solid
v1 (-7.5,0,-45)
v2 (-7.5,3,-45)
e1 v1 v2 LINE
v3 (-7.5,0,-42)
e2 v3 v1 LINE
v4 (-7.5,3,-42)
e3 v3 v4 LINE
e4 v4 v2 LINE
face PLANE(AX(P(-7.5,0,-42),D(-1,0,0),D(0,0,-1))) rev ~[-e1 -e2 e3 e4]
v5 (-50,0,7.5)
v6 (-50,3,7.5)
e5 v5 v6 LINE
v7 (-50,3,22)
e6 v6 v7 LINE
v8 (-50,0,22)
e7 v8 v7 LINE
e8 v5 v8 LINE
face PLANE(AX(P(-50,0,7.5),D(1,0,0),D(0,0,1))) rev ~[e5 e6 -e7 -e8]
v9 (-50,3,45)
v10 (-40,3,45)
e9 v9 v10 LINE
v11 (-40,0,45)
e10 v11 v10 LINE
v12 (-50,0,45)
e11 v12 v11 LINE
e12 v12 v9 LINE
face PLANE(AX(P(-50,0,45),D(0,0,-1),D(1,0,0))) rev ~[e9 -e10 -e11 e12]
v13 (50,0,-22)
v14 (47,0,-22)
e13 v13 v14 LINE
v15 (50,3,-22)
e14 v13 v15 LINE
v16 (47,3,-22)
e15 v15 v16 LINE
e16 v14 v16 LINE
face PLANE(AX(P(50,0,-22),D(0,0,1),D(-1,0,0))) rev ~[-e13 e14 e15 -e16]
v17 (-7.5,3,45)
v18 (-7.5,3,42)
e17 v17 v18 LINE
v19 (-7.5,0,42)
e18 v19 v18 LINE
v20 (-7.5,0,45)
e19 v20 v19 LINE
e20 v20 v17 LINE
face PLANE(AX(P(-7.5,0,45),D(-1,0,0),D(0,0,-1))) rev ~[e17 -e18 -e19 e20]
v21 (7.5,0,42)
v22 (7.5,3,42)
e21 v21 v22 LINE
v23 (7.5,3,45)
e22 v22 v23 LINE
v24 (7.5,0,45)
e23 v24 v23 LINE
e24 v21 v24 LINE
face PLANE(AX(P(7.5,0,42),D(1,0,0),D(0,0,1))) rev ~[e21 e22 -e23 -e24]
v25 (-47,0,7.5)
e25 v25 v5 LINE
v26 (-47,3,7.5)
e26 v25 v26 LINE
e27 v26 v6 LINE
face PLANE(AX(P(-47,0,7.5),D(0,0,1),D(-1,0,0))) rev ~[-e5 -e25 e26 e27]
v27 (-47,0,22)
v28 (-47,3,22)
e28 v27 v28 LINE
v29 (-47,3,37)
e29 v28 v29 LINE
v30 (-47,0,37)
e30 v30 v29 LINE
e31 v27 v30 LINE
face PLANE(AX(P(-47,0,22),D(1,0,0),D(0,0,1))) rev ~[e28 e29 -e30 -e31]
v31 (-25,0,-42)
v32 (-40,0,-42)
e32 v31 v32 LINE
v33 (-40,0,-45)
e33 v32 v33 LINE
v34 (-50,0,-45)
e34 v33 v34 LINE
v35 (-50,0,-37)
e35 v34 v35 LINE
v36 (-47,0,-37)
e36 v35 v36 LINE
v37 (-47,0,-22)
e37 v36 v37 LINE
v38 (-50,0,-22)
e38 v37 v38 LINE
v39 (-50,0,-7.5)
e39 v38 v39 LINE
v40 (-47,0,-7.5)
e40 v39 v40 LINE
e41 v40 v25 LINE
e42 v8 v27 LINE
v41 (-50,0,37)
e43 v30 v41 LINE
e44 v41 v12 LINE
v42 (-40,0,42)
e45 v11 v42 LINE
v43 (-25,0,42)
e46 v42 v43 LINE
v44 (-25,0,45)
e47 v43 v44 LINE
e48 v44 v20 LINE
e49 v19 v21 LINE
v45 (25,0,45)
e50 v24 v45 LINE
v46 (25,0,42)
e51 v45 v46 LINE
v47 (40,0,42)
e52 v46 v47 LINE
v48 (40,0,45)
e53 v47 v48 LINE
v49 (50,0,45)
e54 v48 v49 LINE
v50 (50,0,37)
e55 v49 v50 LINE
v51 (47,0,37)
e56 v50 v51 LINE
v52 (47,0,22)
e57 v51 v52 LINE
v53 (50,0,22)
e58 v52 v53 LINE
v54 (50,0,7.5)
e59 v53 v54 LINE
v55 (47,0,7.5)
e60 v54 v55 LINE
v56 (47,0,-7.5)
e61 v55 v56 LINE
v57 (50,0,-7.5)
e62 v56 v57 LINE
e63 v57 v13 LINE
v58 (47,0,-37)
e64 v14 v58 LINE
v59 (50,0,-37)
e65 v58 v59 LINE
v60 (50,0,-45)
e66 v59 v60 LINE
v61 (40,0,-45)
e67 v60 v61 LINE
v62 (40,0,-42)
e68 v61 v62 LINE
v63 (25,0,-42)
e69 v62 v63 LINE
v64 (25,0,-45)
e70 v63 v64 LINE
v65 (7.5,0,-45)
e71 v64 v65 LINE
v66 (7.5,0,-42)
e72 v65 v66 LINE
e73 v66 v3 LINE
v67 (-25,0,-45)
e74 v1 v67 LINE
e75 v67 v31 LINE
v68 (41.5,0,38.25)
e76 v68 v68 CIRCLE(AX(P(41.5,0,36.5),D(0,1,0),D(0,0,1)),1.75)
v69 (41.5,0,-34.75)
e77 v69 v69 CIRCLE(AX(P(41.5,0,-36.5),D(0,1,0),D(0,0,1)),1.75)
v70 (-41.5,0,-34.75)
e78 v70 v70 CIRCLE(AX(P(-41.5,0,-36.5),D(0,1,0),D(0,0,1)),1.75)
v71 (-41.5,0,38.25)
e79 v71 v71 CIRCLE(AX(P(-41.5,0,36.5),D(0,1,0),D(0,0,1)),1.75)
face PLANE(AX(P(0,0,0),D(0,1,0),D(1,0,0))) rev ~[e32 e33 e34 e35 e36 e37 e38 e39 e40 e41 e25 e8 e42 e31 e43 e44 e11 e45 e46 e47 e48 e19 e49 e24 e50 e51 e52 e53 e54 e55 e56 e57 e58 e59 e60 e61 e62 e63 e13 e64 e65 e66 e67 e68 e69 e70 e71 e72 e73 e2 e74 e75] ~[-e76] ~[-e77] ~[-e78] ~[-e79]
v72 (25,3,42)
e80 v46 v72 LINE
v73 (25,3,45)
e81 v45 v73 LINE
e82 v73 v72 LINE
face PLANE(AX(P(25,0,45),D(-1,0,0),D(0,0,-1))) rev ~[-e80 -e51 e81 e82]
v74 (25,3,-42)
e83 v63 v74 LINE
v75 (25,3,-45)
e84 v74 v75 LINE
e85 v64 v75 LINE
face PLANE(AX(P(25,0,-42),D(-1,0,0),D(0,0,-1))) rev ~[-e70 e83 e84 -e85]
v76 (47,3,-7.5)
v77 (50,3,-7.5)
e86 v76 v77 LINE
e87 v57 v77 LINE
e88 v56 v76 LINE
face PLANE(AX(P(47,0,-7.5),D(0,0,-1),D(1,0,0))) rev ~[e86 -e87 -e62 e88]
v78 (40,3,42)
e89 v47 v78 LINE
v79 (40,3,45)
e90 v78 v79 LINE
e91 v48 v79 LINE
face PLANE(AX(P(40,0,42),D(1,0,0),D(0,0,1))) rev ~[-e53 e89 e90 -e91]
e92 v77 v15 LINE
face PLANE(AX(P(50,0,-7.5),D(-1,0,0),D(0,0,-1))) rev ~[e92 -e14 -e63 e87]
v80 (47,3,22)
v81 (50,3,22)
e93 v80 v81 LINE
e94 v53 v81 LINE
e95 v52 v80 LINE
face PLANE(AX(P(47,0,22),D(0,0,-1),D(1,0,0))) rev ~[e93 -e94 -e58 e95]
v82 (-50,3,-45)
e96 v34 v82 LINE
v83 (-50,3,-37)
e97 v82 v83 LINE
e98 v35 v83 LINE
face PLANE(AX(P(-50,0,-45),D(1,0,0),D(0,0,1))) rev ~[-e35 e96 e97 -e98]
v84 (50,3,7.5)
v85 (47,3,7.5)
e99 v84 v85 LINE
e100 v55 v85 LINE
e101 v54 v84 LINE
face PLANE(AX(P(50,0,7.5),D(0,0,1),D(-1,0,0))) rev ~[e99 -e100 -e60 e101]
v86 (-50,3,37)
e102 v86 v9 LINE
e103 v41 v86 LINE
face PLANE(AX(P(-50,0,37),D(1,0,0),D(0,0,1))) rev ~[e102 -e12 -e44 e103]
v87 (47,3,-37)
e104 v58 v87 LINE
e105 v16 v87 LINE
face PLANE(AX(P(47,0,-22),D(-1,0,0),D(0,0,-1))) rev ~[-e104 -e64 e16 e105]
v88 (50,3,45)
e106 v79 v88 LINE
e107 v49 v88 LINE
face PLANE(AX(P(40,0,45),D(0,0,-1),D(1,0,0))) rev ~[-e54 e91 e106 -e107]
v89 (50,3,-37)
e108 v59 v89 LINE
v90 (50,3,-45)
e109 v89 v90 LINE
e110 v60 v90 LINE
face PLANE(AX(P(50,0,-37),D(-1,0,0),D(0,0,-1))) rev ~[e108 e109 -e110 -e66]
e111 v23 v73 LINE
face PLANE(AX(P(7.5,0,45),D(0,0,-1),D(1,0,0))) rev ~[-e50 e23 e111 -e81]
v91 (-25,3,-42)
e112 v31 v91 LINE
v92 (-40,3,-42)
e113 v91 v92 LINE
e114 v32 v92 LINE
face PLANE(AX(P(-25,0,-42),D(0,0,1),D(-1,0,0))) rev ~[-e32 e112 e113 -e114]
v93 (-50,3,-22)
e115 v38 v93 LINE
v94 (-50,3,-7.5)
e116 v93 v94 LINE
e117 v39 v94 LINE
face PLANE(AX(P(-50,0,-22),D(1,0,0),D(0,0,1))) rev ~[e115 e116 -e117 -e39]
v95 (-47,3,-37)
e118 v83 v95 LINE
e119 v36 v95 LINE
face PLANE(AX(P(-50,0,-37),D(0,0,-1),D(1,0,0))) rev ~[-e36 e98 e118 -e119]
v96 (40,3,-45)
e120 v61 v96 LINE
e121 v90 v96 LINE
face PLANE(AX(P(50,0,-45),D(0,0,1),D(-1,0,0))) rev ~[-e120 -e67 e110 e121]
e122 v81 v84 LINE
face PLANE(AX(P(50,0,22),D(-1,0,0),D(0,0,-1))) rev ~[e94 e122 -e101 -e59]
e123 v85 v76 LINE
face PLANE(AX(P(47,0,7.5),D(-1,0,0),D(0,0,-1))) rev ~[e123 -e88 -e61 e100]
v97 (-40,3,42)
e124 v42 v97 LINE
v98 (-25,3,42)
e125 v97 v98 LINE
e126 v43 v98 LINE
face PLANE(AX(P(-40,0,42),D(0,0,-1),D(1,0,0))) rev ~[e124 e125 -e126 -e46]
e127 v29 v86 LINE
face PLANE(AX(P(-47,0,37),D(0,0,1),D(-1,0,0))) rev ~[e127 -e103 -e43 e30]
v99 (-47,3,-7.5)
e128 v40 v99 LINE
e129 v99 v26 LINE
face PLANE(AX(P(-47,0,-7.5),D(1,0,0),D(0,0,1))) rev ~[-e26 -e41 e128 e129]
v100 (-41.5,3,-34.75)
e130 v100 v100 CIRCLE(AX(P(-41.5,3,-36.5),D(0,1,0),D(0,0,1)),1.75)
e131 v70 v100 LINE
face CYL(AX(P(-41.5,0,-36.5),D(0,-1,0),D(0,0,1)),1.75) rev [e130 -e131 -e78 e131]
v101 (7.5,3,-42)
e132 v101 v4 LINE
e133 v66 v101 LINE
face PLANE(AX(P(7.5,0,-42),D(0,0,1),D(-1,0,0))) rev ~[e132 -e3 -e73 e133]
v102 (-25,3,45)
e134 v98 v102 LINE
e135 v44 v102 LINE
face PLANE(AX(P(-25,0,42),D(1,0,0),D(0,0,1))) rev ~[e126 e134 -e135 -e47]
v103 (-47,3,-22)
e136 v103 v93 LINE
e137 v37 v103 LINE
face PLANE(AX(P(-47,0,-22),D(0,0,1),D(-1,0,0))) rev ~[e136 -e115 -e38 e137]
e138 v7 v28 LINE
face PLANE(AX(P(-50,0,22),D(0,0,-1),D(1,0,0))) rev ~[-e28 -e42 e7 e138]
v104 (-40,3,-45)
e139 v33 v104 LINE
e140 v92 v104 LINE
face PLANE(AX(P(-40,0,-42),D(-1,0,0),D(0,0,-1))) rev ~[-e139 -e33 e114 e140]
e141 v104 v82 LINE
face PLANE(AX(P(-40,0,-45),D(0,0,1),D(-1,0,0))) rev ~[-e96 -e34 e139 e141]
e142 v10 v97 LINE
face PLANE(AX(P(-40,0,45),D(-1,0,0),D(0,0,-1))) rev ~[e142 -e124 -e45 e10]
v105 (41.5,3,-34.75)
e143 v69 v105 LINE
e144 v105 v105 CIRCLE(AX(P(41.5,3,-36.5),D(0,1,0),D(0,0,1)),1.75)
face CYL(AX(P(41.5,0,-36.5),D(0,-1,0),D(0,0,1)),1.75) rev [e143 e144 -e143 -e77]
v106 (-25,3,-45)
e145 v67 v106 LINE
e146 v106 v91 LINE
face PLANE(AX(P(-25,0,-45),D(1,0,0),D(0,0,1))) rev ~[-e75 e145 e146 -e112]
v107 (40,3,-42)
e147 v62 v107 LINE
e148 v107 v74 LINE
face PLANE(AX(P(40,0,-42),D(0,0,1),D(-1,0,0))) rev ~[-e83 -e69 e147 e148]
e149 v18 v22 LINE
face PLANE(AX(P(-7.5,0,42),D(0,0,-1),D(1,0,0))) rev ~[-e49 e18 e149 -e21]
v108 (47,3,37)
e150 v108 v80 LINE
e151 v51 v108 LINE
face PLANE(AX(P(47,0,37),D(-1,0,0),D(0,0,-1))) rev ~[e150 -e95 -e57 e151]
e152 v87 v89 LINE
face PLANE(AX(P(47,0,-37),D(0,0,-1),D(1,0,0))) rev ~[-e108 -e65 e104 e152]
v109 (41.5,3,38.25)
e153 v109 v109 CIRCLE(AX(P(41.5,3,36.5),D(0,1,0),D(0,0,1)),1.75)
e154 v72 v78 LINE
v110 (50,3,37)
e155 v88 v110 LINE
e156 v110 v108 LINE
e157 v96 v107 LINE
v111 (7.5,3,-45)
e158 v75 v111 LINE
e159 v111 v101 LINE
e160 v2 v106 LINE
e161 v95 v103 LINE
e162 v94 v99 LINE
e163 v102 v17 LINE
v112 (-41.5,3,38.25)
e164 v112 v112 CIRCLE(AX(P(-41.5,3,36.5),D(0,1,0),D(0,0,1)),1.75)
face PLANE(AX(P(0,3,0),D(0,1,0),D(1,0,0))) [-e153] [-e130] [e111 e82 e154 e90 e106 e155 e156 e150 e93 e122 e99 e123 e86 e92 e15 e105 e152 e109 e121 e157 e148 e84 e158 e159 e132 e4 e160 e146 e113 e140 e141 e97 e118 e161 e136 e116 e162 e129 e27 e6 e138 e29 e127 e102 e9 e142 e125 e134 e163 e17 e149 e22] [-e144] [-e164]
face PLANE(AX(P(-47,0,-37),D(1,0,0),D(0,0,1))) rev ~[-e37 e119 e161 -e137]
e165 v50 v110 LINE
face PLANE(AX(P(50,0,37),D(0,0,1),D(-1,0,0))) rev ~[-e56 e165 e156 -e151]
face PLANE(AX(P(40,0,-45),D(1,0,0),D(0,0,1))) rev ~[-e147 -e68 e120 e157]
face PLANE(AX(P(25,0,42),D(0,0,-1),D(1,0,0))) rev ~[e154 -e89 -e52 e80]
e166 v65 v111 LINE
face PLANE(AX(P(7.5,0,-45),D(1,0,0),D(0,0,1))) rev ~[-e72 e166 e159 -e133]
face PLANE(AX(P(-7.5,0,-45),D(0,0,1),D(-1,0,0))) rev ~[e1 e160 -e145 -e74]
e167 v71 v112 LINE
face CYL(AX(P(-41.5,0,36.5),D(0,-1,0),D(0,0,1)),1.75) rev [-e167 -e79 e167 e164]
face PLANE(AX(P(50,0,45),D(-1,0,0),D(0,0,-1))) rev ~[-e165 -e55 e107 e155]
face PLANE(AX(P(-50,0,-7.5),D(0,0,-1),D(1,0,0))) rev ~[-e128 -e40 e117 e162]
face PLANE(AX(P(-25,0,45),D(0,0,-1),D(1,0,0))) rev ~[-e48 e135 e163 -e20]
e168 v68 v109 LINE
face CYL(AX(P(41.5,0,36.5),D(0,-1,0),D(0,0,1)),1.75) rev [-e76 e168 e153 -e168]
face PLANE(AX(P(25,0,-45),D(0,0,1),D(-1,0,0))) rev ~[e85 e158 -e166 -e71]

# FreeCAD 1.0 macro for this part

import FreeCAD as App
import Part
import Sketcher


def add_polygon(sketch, points):
    """Adds a closed chain of lines whose ends are joined by coincident constraints."""
    first, n = sketch.GeometryCount, len(points)
    for a, b in zip(points, points[1:] + points[:1]):
        sketch.addGeometry(Part.LineSegment(App.Vector(*a, 0), App.Vector(*b, 0)), False)
    for i in range(n):
        sketch.addConstraint(Sketcher.Constraint("Coincident", first + i, 2, first + (i + 1) % n, 1))

doc = App.newDocument("Part")
body = doc.addObject("PartDesign::Body", "Body")

# Sketch on XZ plane
sketch1 = doc.addObject("Sketcher::SketchObject", "Sketch")
body.addObject(sketch1)
sketch1.AttachmentSupport = (doc.XZ_Plane, [""])
sketch1.MapMode = "FlatFace"
add_polygon(sketch1, [(-50, 45), (-40, 45), (-40, 42), (-25, 42), (-25, 45), (-7.5, 45), (-7.5, 42), (7.5, 42), (7.5, 45), (25, 45), (25, 42), (40, 42), (40, 45), (50, 45), (50, 37), (47, 37), (47, 22), (50, 22), (50, 7.5), (47, 7.5), (47, -7.5), (50, -7.5), (50, -22), (47, -22), (47, -37), (50, -37), (50, -45), (40, -45), (40, -42), (25, -42), (25, -45), (7.5, -45), (7.5, -42), (-7.5, -42), (-7.5, -45), (-25, -45), (-25, -42), (-40, -42), (-40, -45), (-50, -45), (-50, -37), (-47, -37), (-47, -22), (-50, -22), (-50, -7.5), (-47, -7.5), (-47, 7.5), (-50, 7.5), (-50, 22), (-47, 22), (-47, 37), (-50, 37)])  # lines 0-51
sketch1.addGeometry(Part.Circle(App.Vector(-41.5, 36.5, 0), App.Vector(0, 0, 1), 1.8), False)  # 52
sketch1.addGeometry(Part.Circle(App.Vector(41.5, 36.5, 0), App.Vector(0, 0, 1), 1.8), False)  # 53
sketch1.addGeometry(Part.Circle(App.Vector(-41.5, -36.5, 0), App.Vector(0, 0, 1), 1.8), False)  # 54
sketch1.addGeometry(Part.Circle(App.Vector(41.5, -36.5, 0), App.Vector(0, 0, 1), 1.8), False)  # 55
sketch1.addConstraint([
    Sketcher.Constraint("Horizontal", 0),
    Sketcher.Constraint("Vertical", 1),
    Sketcher.Constraint("Horizontal", 2),
    Sketcher.Constraint("Vertical", 3),
    Sketcher.Constraint("Horizontal", 4),
    Sketcher.Constraint("Vertical", 5),
    Sketcher.Constraint("Horizontal", 6),
    Sketcher.Constraint("Vertical", 7),
    Sketcher.Constraint("Horizontal", 8),
    Sketcher.Constraint("Vertical", 9),
    Sketcher.Constraint("Horizontal", 10),
    Sketcher.Constraint("Vertical", 11),
    Sketcher.Constraint("Horizontal", 12),
    Sketcher.Constraint("Vertical", 13),
    Sketcher.Constraint("Horizontal", 14),
    Sketcher.Constraint("Vertical", 15),
    Sketcher.Constraint("Horizontal", 16),
    Sketcher.Constraint("Vertical", 17),
    Sketcher.Constraint("Horizontal", 18),
    Sketcher.Constraint("Vertical", 19),
    Sketcher.Constraint("Horizontal", 20),
    Sketcher.Constraint("Vertical", 21),
    Sketcher.Constraint("Horizontal", 22),
    Sketcher.Constraint("Vertical", 23),
    Sketcher.Constraint("Horizontal", 24),
    Sketcher.Constraint("Vertical", 25),
    Sketcher.Constraint("Horizontal", 26),
    Sketcher.Constraint("Vertical", 27),
    Sketcher.Constraint("Horizontal", 28),
    Sketcher.Constraint("Vertical", 29),
    Sketcher.Constraint("Horizontal", 30),
    Sketcher.Constraint("Vertical", 31),
    Sketcher.Constraint("Horizontal", 32),
    Sketcher.Constraint("Vertical", 33),
    Sketcher.Constraint("Horizontal", 34),
    Sketcher.Constraint("Vertical", 35),
    Sketcher.Constraint("Horizontal", 36),
    Sketcher.Constraint("Vertical", 37),
    Sketcher.Constraint("Horizontal", 38),
    Sketcher.Constraint("Vertical", 39),
    Sketcher.Constraint("Horizontal", 40),
    Sketcher.Constraint("Vertical", 41),
    Sketcher.Constraint("Horizontal", 42),
    Sketcher.Constraint("Vertical", 43),
    Sketcher.Constraint("Horizontal", 44),
    Sketcher.Constraint("Vertical", 45),
    Sketcher.Constraint("Horizontal", 46),
    Sketcher.Constraint("Vertical", 47),
    Sketcher.Constraint("Horizontal", 48),
    Sketcher.Constraint("Vertical", 49),
    Sketcher.Constraint("Horizontal", 50),
    Sketcher.Constraint("Vertical", 51),
    Sketcher.Constraint("Equal", 52, 53),
    Sketcher.Constraint("Equal", 53, 54),
    Sketcher.Constraint("Equal", 54, 55),
    Sketcher.Constraint("Symmetric", 53, 3, 54, 3, -1, 1),
    Sketcher.Constraint("Symmetric", 52, 3, 55, 3, -1, 1),
    Sketcher.Constraint("Symmetric", 0, 2, 26, 2, -1, 1),
    Sketcher.Constraint("Symmetric", 2, 2, 28, 2, -1, 1),
    Sketcher.Constraint("Symmetric", 4, 2, 30, 2, -1, 1),
    Sketcher.Constraint("Symmetric", 6, 2, 32, 2, -1, 1),
    Sketcher.Constraint("Symmetric", 8, 2, 34, 2, -1, 1),
    Sketcher.Constraint("Symmetric", 10, 2, 36, 2, -1, 1),
    Sketcher.Constraint("Symmetric", 12, 2, 38, 2, -1, 1),
    Sketcher.Constraint("Symmetric", 14, 2, 40, 2, -1, 1),
    Sketcher.Constraint("Symmetric", 16, 2, 42, 2, -1, 1),
    Sketcher.Constraint("Symmetric", 18, 2, 44, 2, -1, 1),
    Sketcher.Constraint("Symmetric", 20, 2, 46, 2, -1, 1),
    Sketcher.Constraint("Symmetric", 22, 2, 48, 2, -1, 1),
    Sketcher.Constraint("Symmetric", 24, 2, 50, 2, -1, 1),
    Sketcher.Constraint("Symmetric", 52, 3, 53, 3, -2),
    Sketcher.Constraint("Symmetric", 4, 2, 7, 2, -2),
    Sketcher.Constraint("Symmetric", 2, 2, 9, 2, -2),
    Sketcher.Constraint("Symmetric", 0, 2, 11, 2, -2),
    Sketcher.Constraint("Symmetric", 24, 2, 39, 2, -2),
    Sketcher.Constraint("Symmetric", 22, 2, 41, 2, -2),
    Sketcher.Constraint("Symmetric", 20, 2, 43, 2, -2),
    Sketcher.Constraint("Horizontal", 0, 2, 3, 2),
    Sketcher.Constraint("Horizontal", 2, 2, 5, 2),
    Sketcher.Constraint("Vertical", 13, 2, 16, 2),
    Sketcher.Constraint("Vertical", 15, 2, 18, 2),
    Sketcher.Constraint("Equal", 2, 6),
    Sketcher.Constraint("Equal", 50, 1),
    Sketcher.Constraint("Equal", 36, 15),
    Sketcher.Constraint("Equal", 15, 19),
    Sketcher.Constraint("Diameter", 52, 3.5),
    Sketcher.Constraint("DistanceX", 0, 1, 0, 2, 10.0),
    Sketcher.Constraint("DistanceX", 2, 1, 2, 2, 15.0),
    Sketcher.Constraint("DistanceX", 14, 2, 14, 1, 3.0),
    Sketcher.Constraint("DistanceY", 13, 2, 13, 1, 8.0),
    Sketcher.Constraint("DistanceX", 4, 1, 4, 2, 17.5),
    Sketcher.Constraint("DistanceY", 17, 2, 17, 1, 14.5),
    Sketcher.Constraint("DistanceX", 52, 3, 53, 3, 83.0),
    Sketcher.Constraint("DistanceY", 54, 3, 52, 3, 73.0),
])
pad1 = doc.addObject("PartDesign::Pad", "Pad")
body.addObject(pad1)
pad1.Profile = sketch1
pad1.Length = 3
pad1.Reversed = True

doc.recompute()
